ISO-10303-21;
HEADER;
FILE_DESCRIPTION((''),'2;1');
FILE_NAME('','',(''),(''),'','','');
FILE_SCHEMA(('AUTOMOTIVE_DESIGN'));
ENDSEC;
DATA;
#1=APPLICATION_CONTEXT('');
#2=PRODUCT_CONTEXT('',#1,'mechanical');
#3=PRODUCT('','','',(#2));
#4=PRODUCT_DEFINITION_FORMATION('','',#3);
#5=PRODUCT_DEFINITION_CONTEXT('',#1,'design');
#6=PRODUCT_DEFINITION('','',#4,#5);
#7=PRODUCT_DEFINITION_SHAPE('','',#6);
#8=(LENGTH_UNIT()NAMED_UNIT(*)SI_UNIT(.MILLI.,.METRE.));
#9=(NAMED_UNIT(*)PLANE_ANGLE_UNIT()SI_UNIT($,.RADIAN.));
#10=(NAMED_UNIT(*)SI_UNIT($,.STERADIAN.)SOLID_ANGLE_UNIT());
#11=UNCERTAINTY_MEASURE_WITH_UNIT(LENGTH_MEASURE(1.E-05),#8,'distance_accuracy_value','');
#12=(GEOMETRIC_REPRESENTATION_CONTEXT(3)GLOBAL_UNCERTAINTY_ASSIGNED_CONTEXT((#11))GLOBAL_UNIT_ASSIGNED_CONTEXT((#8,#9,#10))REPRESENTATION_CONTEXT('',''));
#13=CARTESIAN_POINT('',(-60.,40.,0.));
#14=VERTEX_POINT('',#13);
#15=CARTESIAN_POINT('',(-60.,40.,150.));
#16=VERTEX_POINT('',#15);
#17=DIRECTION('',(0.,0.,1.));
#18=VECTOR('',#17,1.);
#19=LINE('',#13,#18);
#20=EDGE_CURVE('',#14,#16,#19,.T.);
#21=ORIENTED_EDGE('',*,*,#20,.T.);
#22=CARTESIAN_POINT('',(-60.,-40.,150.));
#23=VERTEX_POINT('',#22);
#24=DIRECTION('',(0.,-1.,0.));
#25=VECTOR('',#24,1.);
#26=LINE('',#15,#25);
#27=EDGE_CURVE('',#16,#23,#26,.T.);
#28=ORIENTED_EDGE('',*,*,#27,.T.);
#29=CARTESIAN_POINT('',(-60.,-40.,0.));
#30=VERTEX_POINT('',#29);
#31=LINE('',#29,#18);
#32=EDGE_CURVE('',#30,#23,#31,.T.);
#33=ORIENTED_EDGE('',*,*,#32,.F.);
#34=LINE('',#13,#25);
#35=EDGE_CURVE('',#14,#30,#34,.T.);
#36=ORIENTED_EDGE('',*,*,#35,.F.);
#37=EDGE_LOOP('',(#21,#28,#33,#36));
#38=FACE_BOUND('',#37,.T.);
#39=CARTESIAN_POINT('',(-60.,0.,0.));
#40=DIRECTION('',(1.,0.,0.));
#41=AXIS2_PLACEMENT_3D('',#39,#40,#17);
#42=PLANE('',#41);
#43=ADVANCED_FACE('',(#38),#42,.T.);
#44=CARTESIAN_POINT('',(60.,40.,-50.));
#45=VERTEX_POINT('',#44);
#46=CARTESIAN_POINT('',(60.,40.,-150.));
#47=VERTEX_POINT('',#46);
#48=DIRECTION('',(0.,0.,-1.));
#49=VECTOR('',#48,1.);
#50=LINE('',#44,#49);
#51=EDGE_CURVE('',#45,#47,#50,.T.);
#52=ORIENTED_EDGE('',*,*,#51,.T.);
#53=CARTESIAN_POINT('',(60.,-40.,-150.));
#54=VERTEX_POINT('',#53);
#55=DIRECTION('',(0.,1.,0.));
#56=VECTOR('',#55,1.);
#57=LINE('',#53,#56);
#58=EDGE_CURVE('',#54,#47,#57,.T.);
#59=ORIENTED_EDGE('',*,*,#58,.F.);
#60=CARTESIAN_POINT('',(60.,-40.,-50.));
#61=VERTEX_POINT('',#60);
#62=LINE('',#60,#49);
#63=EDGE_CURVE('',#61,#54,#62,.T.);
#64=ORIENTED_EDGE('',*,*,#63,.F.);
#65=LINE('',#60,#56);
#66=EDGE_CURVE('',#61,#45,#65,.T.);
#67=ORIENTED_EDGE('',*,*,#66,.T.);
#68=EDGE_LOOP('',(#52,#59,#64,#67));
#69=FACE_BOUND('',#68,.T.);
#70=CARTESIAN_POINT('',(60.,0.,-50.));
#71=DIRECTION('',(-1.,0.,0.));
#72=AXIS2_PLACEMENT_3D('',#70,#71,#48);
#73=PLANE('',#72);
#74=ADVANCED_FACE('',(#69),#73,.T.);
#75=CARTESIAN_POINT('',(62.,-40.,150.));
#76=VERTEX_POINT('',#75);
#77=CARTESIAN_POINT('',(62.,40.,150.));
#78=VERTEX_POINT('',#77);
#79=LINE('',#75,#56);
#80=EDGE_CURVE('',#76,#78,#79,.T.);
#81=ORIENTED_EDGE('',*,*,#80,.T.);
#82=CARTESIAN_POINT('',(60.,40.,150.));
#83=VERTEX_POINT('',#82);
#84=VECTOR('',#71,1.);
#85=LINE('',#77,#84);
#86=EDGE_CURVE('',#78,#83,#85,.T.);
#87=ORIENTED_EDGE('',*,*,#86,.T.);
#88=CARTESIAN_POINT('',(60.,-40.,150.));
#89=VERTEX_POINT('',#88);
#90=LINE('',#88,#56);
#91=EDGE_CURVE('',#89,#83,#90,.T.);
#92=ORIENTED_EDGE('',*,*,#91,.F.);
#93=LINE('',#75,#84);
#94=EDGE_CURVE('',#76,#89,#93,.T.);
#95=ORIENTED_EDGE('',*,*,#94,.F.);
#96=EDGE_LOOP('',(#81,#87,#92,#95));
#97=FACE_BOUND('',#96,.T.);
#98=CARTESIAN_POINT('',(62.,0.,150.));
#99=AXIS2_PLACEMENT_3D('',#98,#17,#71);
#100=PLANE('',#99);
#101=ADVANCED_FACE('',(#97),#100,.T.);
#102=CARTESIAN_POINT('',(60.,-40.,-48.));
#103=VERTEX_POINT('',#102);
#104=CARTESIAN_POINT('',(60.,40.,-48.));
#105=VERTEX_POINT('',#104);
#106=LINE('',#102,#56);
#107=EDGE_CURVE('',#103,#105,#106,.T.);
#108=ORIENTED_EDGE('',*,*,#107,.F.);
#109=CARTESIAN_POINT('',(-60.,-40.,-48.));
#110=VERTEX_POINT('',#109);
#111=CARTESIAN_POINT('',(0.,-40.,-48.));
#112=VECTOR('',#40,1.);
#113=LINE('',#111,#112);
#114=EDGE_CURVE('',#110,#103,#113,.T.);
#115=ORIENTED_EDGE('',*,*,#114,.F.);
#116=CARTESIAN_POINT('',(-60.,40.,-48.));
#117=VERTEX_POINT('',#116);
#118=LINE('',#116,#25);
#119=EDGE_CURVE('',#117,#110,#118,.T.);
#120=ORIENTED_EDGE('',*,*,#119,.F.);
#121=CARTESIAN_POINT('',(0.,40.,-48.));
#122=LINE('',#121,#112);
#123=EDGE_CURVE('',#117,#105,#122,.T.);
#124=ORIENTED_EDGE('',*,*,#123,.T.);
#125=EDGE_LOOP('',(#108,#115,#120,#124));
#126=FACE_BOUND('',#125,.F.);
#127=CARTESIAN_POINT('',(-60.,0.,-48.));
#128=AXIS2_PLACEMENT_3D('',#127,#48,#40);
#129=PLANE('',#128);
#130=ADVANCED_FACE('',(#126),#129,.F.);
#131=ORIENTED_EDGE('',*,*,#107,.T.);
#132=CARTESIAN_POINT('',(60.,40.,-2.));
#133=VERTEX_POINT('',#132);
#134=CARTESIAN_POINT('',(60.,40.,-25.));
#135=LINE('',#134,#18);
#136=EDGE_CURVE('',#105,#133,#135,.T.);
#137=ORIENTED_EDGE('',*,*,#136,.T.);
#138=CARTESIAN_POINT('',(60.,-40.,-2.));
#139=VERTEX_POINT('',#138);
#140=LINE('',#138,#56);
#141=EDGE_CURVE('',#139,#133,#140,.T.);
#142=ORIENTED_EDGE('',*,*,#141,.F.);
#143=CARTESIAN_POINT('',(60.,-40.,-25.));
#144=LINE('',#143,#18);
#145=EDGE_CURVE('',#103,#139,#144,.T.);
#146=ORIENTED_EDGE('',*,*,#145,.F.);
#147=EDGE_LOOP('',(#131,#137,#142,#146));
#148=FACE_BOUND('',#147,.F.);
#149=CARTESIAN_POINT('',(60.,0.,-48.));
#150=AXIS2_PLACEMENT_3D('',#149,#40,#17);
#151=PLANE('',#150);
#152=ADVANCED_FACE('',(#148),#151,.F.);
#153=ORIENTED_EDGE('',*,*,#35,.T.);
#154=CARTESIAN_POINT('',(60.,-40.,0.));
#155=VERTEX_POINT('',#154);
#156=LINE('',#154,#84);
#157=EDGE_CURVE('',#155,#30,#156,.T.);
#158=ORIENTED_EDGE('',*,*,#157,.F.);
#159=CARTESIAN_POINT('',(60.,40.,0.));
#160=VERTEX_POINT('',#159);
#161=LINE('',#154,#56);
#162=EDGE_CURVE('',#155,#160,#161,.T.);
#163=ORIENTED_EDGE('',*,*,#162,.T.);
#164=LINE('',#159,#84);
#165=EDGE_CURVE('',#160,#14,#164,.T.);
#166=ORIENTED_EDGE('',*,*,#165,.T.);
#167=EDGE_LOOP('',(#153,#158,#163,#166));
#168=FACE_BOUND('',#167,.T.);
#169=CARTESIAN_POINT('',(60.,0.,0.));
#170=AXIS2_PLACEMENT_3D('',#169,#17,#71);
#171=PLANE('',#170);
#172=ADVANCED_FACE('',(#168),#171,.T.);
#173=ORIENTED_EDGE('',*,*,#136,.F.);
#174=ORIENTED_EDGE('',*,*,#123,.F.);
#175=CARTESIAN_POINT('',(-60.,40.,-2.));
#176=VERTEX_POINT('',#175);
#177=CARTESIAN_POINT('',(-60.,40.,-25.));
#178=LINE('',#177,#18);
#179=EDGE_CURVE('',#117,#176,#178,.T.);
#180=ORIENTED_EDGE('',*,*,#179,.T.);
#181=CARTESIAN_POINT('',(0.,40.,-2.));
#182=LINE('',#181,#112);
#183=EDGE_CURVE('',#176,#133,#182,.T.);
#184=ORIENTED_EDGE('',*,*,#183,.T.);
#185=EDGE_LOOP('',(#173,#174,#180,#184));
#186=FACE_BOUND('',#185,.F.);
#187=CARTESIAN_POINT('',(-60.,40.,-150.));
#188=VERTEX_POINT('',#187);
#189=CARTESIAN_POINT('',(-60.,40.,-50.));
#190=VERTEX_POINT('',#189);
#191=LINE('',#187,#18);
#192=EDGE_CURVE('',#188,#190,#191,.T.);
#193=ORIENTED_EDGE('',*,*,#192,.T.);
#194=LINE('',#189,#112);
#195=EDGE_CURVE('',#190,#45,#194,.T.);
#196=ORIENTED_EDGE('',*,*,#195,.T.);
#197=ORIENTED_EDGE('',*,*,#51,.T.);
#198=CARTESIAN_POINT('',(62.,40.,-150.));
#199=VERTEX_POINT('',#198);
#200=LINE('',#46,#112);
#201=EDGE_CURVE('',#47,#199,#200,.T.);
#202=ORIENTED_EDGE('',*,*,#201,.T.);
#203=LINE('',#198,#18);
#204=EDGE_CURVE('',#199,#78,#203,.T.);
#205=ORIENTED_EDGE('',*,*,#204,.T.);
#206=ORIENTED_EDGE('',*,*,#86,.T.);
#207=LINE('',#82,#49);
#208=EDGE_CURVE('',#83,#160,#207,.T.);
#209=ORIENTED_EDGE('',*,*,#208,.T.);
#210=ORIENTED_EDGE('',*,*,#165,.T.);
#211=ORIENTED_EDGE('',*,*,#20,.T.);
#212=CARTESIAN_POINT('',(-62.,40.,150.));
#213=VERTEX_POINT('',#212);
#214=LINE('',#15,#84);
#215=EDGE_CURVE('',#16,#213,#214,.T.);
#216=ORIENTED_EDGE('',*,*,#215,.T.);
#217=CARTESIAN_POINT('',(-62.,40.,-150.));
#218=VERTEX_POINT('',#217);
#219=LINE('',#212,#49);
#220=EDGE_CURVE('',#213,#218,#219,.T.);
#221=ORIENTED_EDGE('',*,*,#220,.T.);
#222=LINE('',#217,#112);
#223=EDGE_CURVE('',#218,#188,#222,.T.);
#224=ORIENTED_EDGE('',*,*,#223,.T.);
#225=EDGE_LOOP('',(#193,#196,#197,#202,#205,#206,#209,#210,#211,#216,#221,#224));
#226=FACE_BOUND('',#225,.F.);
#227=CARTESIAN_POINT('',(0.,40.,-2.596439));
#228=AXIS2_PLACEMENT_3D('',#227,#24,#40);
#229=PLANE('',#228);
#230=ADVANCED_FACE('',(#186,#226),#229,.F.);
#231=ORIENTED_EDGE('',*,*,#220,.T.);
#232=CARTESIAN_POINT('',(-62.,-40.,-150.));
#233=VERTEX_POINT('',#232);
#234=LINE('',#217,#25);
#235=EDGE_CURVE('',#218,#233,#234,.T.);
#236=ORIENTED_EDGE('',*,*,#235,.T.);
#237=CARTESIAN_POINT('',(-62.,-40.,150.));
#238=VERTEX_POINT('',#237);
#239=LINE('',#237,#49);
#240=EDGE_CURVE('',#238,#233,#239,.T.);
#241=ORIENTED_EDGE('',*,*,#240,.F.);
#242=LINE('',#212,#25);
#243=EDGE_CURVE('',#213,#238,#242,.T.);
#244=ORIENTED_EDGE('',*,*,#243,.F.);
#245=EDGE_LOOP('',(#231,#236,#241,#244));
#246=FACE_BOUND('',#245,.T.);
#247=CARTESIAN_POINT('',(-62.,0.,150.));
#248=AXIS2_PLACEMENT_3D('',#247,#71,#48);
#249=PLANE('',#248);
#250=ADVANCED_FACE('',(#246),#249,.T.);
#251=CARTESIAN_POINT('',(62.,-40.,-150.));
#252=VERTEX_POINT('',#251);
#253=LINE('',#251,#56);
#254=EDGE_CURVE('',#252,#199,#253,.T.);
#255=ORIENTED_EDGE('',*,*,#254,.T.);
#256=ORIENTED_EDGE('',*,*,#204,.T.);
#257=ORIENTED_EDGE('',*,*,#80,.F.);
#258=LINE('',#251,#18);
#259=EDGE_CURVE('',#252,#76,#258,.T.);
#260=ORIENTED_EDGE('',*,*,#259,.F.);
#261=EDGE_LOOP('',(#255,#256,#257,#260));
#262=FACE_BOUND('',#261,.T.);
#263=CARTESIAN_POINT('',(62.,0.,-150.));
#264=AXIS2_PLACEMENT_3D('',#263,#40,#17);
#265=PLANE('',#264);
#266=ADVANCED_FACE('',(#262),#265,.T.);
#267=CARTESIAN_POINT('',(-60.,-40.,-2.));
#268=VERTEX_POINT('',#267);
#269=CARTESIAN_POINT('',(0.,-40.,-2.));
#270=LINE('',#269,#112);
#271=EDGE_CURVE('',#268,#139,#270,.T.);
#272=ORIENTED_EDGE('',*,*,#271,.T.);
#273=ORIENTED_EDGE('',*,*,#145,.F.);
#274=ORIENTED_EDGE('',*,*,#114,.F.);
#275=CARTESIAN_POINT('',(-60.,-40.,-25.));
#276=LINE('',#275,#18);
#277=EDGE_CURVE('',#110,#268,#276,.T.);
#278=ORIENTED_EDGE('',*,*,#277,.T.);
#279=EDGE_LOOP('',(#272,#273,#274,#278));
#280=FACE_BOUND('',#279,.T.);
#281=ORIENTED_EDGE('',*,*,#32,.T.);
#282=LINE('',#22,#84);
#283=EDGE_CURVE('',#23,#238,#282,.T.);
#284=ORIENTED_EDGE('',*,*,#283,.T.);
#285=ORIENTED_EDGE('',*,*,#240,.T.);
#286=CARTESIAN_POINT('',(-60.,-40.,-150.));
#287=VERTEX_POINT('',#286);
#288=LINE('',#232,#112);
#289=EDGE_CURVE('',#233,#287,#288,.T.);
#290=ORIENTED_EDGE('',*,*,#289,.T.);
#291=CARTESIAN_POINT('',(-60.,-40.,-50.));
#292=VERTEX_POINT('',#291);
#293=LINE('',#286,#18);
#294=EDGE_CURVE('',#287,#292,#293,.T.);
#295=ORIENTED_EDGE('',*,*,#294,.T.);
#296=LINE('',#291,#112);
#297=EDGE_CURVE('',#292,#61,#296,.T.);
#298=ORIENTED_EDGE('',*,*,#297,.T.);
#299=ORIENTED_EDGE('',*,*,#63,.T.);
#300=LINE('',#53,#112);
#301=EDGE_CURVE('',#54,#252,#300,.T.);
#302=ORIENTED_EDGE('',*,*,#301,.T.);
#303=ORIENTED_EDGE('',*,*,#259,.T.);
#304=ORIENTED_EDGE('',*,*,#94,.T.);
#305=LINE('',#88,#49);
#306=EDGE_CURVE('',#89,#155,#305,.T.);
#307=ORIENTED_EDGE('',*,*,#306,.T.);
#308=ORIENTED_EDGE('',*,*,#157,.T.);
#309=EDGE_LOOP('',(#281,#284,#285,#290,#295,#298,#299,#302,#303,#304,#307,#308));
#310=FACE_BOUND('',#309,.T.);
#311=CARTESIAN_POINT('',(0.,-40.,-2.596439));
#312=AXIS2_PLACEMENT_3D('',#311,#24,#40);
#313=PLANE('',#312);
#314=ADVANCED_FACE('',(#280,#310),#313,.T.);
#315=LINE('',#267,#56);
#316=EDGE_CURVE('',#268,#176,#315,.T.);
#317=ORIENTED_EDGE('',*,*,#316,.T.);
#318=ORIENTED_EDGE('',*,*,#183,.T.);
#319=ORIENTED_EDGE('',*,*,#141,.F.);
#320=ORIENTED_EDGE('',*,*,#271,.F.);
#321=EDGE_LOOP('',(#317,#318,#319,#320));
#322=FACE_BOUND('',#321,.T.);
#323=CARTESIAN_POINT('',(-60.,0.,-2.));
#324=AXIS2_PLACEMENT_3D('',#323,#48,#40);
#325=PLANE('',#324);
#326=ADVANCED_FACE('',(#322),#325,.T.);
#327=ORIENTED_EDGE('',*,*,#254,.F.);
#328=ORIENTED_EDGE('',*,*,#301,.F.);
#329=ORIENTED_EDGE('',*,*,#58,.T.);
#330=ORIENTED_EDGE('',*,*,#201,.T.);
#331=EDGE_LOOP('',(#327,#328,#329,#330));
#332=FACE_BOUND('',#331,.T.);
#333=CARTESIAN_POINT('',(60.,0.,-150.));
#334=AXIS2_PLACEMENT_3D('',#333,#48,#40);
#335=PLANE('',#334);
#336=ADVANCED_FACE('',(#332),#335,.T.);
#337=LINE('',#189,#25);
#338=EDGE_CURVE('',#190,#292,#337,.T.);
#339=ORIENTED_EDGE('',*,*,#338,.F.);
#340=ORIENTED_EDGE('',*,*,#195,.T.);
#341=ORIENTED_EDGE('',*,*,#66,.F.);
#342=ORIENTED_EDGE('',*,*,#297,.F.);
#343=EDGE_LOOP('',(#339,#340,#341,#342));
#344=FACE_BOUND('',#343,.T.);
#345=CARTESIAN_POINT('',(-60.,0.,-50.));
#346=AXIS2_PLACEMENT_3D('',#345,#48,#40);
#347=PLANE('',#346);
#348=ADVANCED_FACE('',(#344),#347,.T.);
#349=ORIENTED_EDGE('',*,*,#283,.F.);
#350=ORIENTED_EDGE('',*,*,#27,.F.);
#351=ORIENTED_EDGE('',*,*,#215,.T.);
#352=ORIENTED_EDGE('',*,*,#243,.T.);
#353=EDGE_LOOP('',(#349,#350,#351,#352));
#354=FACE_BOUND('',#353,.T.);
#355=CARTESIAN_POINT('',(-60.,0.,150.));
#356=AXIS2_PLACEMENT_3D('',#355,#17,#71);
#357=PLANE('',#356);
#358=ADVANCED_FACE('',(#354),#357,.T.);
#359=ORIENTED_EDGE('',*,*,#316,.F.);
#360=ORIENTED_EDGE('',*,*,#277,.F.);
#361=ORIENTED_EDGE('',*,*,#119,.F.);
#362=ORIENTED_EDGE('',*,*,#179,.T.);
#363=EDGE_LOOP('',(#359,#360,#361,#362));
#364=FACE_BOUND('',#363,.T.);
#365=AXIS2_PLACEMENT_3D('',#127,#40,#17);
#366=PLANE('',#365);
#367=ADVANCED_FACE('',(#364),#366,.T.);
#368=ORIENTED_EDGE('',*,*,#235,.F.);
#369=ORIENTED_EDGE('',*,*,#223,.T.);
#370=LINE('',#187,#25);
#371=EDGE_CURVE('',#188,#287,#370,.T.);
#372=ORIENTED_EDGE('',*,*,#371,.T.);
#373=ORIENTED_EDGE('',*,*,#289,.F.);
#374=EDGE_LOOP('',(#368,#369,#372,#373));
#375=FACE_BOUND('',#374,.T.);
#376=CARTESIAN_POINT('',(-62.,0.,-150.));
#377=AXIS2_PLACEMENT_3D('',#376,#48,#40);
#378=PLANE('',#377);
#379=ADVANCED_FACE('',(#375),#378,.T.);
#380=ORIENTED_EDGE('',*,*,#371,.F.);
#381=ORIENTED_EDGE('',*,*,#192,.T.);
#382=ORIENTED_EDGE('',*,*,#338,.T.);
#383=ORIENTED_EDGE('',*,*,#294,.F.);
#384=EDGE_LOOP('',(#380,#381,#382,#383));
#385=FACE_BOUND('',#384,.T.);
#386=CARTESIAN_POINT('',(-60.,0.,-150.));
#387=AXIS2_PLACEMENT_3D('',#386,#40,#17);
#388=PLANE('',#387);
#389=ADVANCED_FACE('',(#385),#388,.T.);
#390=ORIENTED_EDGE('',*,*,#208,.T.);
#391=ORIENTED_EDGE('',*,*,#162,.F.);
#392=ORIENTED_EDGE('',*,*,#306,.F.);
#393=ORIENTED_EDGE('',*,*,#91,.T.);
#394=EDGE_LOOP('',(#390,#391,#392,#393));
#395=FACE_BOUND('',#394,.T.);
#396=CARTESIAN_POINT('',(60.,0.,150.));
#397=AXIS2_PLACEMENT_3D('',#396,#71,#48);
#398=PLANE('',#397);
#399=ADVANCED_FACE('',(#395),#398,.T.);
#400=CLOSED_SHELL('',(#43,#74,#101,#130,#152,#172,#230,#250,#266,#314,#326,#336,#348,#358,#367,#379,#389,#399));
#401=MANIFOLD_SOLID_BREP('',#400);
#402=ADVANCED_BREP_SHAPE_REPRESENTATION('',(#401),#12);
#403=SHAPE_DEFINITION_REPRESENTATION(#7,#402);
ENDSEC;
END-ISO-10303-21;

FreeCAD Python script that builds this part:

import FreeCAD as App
import Part
import Sketcher
from FreeCAD import Vector
Q = App.Units.Quantity


def add_polygon(sketch, points):
    """Adds a closed chain of lines whose ends are joined by coincident constraints."""
    first, n = sketch.GeometryCount, len(points)
    for a, b in zip(points, points[1:] + points[:1]):
        sketch.addGeometry(Part.LineSegment(App.Vector(*a, 0), App.Vector(*b, 0)), False)
    for i in range(n):
        sketch.addConstraint(Sketcher.Constraint("Coincident", first + i, 2, first + (i + 1) % n, 1))

doc = App.newDocument("Part")
body = doc.addObject("PartDesign::Body", "Body")

# Sketch on XZ plane
sketch1 = body.newObject("Sketcher::SketchObject", "Sketch")
sketch1.AttachmentSupport = (doc.getObject("XZ_Plane"), [""])
sketch1.MapMode = "FlatFace"
add_polygon(sketch1, [(60, 0), (-60, 0), (-60, 150), (-62, 150), (-62, -150), (-60, -150), (-60, -50), (60, -50), (60, -150), (62, -150), (62, 150), (60, 150)])  # lines 0-11
add_polygon(sketch1, [(60, -48), (-60, -48), (-60, -2), (60, -2)])  # lines 12-15
sketch1.addConstraint([
    Sketcher.Constraint("Horizontal", 0),
    Sketcher.Constraint("Vertical", 1),
    Sketcher.Constraint("Horizontal", 2),
    Sketcher.Constraint("Vertical", 3),
    Sketcher.Constraint("Horizontal", 4),
    Sketcher.Constraint("Vertical", 5),
    Sketcher.Constraint("Horizontal", 6),
    Sketcher.Constraint("Vertical", 7),
    Sketcher.Constraint("Horizontal", 8),
    Sketcher.Constraint("Vertical", 9),
    Sketcher.Constraint("Horizontal", 10),
    Sketcher.Constraint("Vertical", 11),
    Sketcher.Constraint("Horizontal", 12),
    Sketcher.Constraint("Vertical", 13),
    Sketcher.Constraint("Horizontal", 14),
    Sketcher.Constraint("Vertical", 15),
    Sketcher.Constraint("Symmetric", 1, 2, 7, 2, -1, 1),
    Sketcher.Constraint("Symmetric", 3, 2, 9, 2, -1, 1),
    Sketcher.Constraint("Symmetric", 0, 2, 11, 2, -1, 1),
    Sketcher.Constraint("Symmetric", 4, 2, 7, 2, -2),
    Sketcher.Constraint("Vertical", 5, 2, 12, 2),
    Sketcher.Constraint("Vertical", 11, 2, 14, 2),
    Sketcher.Constraint("DistanceX", 0, 2, 0, 1, Q("120 mm")),
    Sketcher.Constraint("DistanceX", 2, 2, 2, 1, Q("2 mm")),
    Sketcher.Constraint("DistanceY", 1, 1, 1, 2, Q("150 mm")),
    Sketcher.Constraint("DistanceY", 5, 1, 5, 2, Q("100 mm")),
    Sketcher.Constraint("DistanceY", 13, 1, 13, 2, Q("46 mm")),
    Sketcher.Constraint("DistanceY", 12, 2, -1, 1, Q("48 mm")),
])
pad1 = body.newObject("PartDesign::Pad", "Pad")
pad1.Profile = sketch1
pad1.Length = 80
pad1.Midplane = True

doc.recompute()
